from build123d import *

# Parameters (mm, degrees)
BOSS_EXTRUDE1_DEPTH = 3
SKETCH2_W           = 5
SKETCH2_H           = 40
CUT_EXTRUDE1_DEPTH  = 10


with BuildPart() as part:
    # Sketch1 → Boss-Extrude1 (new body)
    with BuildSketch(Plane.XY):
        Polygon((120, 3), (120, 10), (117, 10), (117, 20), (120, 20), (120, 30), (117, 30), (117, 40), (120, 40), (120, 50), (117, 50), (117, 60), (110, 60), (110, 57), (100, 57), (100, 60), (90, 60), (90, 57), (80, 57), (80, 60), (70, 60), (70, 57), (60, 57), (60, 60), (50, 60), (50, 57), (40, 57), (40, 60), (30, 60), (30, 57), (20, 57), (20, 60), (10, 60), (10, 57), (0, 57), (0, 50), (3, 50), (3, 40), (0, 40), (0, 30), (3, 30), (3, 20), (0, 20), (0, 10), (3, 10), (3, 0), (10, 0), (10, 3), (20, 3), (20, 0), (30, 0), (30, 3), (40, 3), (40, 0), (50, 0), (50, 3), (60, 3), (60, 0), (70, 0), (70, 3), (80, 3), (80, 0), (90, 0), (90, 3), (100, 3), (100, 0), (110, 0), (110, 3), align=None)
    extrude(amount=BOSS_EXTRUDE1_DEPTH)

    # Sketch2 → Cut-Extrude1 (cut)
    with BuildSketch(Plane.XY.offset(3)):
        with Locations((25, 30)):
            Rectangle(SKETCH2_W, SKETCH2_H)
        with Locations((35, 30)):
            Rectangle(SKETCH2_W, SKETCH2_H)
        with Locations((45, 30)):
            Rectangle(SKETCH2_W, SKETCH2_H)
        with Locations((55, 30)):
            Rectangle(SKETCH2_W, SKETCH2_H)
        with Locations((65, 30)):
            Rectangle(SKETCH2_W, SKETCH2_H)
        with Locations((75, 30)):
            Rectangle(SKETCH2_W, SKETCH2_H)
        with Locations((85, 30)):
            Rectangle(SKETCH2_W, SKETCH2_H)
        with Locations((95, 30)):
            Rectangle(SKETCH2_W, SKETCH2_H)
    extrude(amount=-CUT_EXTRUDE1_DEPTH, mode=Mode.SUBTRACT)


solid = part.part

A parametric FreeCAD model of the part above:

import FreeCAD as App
import Part
import Sketcher

V = App.Vector
Q = App.Units.Quantity


def add_polygon(sketch, points):
    """Adds a closed chain of lines whose ends are joined by coincident constraints."""
    first, n = sketch.GeometryCount, len(points)
    for a, b in zip(points, points[1:] + points[:1]):
        sketch.addGeometry(Part.LineSegment(App.Vector(*a, 0), App.Vector(*b, 0)), False)
    for i in range(n):
        sketch.addConstraint(Sketcher.Constraint("Coincident", first + i, 2, first + (i + 1) % n, 1))

doc = App.newDocument("Part")
params = doc.addObject("Spreadsheet::Sheet", "Params")
for row, (alias, value) in enumerate([
    ("sketch1_width", "3 mm"),
    ("sketch1_width2", "7 mm"),
    ("pad1_length", "3 mm"),
    ("sketch2_width", "5 mm"),
    ("sketch2_height", "40 mm"),
    ("pocket1_length", "10 mm"),
], start=1):
    params.set(f"A{row}", alias)
    params.set(f"B{row}", "=" + value)
    params.setAlias(f"B{row}", alias)

body = doc.addObject("PartDesign::Body", "Body")

sketch1 = body.newObject("Sketcher::SketchObject", "Sketch")
sketch1.AttachmentSupport = (doc.getObject("XY_Plane"), [""])
sketch1.MapMode = "FlatFace"
add_polygon(sketch1, [(120, 3), (120, 10), (117, 10), (117, 20), (120, 20), (120, 30), (117, 30), (117, 40), (120, 40), (120, 50), (117, 50), (117, 60), (110, 60), (110, 57), (100, 57), (100, 60), (90, 60), (90, 57), (80, 57), (80, 60), (70, 60), (70, 57), (60, 57), (60, 60), (50, 60), (50, 57), (40, 57), (40, 60), (30, 60), (30, 57), (20, 57), (20, 60), (10, 60), (10, 57), (0, 57), (0, 50), (3, 50), (3, 40), (0, 40), (0, 30), (3, 30), (3, 20), (0, 20), (0, 10), (3, 10), (3, 0), (10, 0), (10, 3), (20, 3), (20, 0), (30, 0), (30, 3), (40, 3), (40, 0), (50, 0), (50, 3), (60, 3), (60, 0), (70, 0), (70, 3), (80, 3), (80, 0), (90, 0), (90, 3), (100, 3), (100, 0), (110, 0), (110, 3)])
sketch1.addConstraint(Sketcher.Constraint("Vertical", 0))
sketch1.addConstraint(Sketcher.Constraint("Horizontal", 1))
sketch1.addConstraint(Sketcher.Constraint("Vertical", 2))
sketch1.addConstraint(Sketcher.Constraint("Horizontal", 3))
sketch1.addConstraint(Sketcher.Constraint("Vertical", 4))
sketch1.addConstraint(Sketcher.Constraint("Horizontal", 5))
sketch1.addConstraint(Sketcher.Constraint("Vertical", 6))
sketch1.addConstraint(Sketcher.Constraint("Horizontal", 7))
sketch1.addConstraint(Sketcher.Constraint("Vertical", 8))
sketch1.addConstraint(Sketcher.Constraint("Horizontal", 9))
sketch1.addConstraint(Sketcher.Constraint("Vertical", 10))
sketch1.addConstraint(Sketcher.Constraint("Horizontal", 11))
sketch1.addConstraint(Sketcher.Constraint("Vertical", 12))
sketch1.addConstraint(Sketcher.Constraint("Horizontal", 13))
sketch1.addConstraint(Sketcher.Constraint("Vertical", 14))
sketch1.addConstraint(Sketcher.Constraint("Horizontal", 15))
sketch1.addConstraint(Sketcher.Constraint("Vertical", 16))
sketch1.addConstraint(Sketcher.Constraint("Horizontal", 17))
sketch1.addConstraint(Sketcher.Constraint("Vertical", 18))
sketch1.addConstraint(Sketcher.Constraint("Horizontal", 19))
sketch1.addConstraint(Sketcher.Constraint("Vertical", 20))
sketch1.addConstraint(Sketcher.Constraint("Horizontal", 21))
sketch1.addConstraint(Sketcher.Constraint("Vertical", 22))
sketch1.addConstraint(Sketcher.Constraint("Horizontal", 23))
sketch1.addConstraint(Sketcher.Constraint("Vertical", 24))
sketch1.addConstraint(Sketcher.Constraint("Horizontal", 25))
sketch1.addConstraint(Sketcher.Constraint("Vertical", 26))
sketch1.addConstraint(Sketcher.Constraint("Horizontal", 27))
sketch1.addConstraint(Sketcher.Constraint("Vertical", 28))
sketch1.addConstraint(Sketcher.Constraint("Horizontal", 29))
sketch1.addConstraint(Sketcher.Constraint("Vertical", 30))
sketch1.addConstraint(Sketcher.Constraint("Horizontal", 31))
sketch1.addConstraint(Sketcher.Constraint("Vertical", 32))
sketch1.addConstraint(Sketcher.Constraint("Horizontal", 33))
sketch1.addConstraint(Sketcher.Constraint("Vertical", 34))
sketch1.addConstraint(Sketcher.Constraint("Horizontal", 35))
sketch1.addConstraint(Sketcher.Constraint("Vertical", 36))
sketch1.addConstraint(Sketcher.Constraint("Horizontal", 37))
sketch1.addConstraint(Sketcher.Constraint("Vertical", 38))
sketch1.addConstraint(Sketcher.Constraint("Horizontal", 39))
sketch1.addConstraint(Sketcher.Constraint("Vertical", 40))
sketch1.addConstraint(Sketcher.Constraint("Horizontal", 41))
sketch1.addConstraint(Sketcher.Constraint("Vertical", 42))
sketch1.addConstraint(Sketcher.Constraint("Horizontal", 43))
sketch1.addConstraint(Sketcher.Constraint("Vertical", 44))
sketch1.addConstraint(Sketcher.Constraint("Horizontal", 45))
sketch1.addConstraint(Sketcher.Constraint("Vertical", 46))
sketch1.addConstraint(Sketcher.Constraint("Horizontal", 47))
sketch1.addConstraint(Sketcher.Constraint("Vertical", 48))
sketch1.addConstraint(Sketcher.Constraint("Horizontal", 49))
sketch1.addConstraint(Sketcher.Constraint("Vertical", 50))
sketch1.addConstraint(Sketcher.Constraint("Horizontal", 51))
sketch1.addConstraint(Sketcher.Constraint("Vertical", 52))
sketch1.addConstraint(Sketcher.Constraint("Horizontal", 53))
sketch1.addConstraint(Sketcher.Constraint("Vertical", 54))
sketch1.addConstraint(Sketcher.Constraint("Horizontal", 55))
sketch1.addConstraint(Sketcher.Constraint("Vertical", 56))
sketch1.addConstraint(Sketcher.Constraint("Horizontal", 57))
sketch1.addConstraint(Sketcher.Constraint("Vertical", 58))
sketch1.addConstraint(Sketcher.Constraint("Horizontal", 59))
sketch1.addConstraint(Sketcher.Constraint("Vertical", 60))
sketch1.addConstraint(Sketcher.Constraint("Horizontal", 61))
sketch1.addConstraint(Sketcher.Constraint("Vertical", 62))
sketch1.addConstraint(Sketcher.Constraint("Horizontal", 63))
sketch1.addConstraint(Sketcher.Constraint("Vertical", 64))
sketch1.addConstraint(Sketcher.Constraint("Horizontal", 65))
sketch1.addConstraint(Sketcher.Constraint("Vertical", 66))
sketch1.addConstraint(Sketcher.Constraint("Horizontal", 67))
sketch1.addConstraint(Sketcher.Constraint("PointOnObject", 33, 2, -2))
sketch1.addConstraint(Sketcher.Constraint("PointOnObject", 37, 2, -2))
sketch1.addConstraint(Sketcher.Constraint("PointOnObject", 41, 2, -2))
sketch1.addConstraint(Sketcher.Constraint("PointOnObject", 44, 2, -1))
sketch1.addConstraint(Sketcher.Constraint("PointOnObject", 48, 2, -1))
sketch1.addConstraint(Sketcher.Constraint("PointOnObject", 52, 2, -1))
sketch1.addConstraint(Sketcher.Constraint("PointOnObject", 56, 2, -1))
sketch1.addConstraint(Sketcher.Constraint("PointOnObject", 60, 2, -1))
sketch1.addConstraint(Sketcher.Constraint("PointOnObject", 64, 2, -1))
sketch1.addConstraint(Sketcher.Constraint("Horizontal", 11, 2, 14, 2))
sketch1.addConstraint(Sketcher.Constraint("Horizontal", 13, 2, 16, 2))
sketch1.addConstraint(Sketcher.Constraint("Horizontal", 15, 2, 18, 2))
sketch1.addConstraint(Sketcher.Constraint("Horizontal", 17, 2, 20, 2))
sketch1.addConstraint(Sketcher.Constraint("Horizontal", 19, 2, 22, 2))
sketch1.addConstraint(Sketcher.Constraint("Horizontal", 21, 2, 24, 2))
sketch1.addConstraint(Sketcher.Constraint("Horizontal", 23, 2, 26, 2))
sketch1.addConstraint(Sketcher.Constraint("Horizontal", 25, 2, 28, 2))
sketch1.addConstraint(Sketcher.Constraint("Horizontal", 27, 2, 30, 2))
sketch1.addConstraint(Sketcher.Constraint("Horizontal", 29, 2, 32, 2))
sketch1.addConstraint(Sketcher.Constraint("Horizontal", 9, 2, 34, 2))
sketch1.addConstraint(Sketcher.Constraint("Horizontal", 7, 2, 36, 2))
sketch1.addConstraint(Sketcher.Constraint("Horizontal", 5, 2, 38, 2))
sketch1.addConstraint(Sketcher.Constraint("Horizontal", 3, 2, 40, 2))
sketch1.addConstraint(Sketcher.Constraint("Horizontal", 1, 2, 42, 2))
sketch1.addConstraint(Sketcher.Constraint("Horizontal", 47, 2, 50, 2))
sketch1.addConstraint(Sketcher.Constraint("Horizontal", 51, 2, 54, 2))
sketch1.addConstraint(Sketcher.Constraint("Horizontal", 55, 2, 58, 2))
sketch1.addConstraint(Sketcher.Constraint("Horizontal", 59, 2, 62, 2))
sketch1.addConstraint(Sketcher.Constraint("Horizontal", 63, 2, 66, 2))
sketch1.addConstraint(Sketcher.Constraint("Vertical", 0, 2, 3, 2))
sketch1.addConstraint(Sketcher.Constraint("Vertical", 2, 2, 5, 2))
sketch1.addConstraint(Sketcher.Constraint("Vertical", 4, 2, 7, 2))
sketch1.addConstraint(Sketcher.Constraint("Vertical", 6, 2, 9, 2))
sketch1.addConstraint(Sketcher.Constraint("Vertical", 36, 2, 39, 2))
sketch1.addConstraint(Sketcher.Constraint("Vertical", 40, 2, 43, 2))
sketch1.addConstraint(Sketcher.Constraint("Vertical", 32, 2, 45, 2))
sketch1.addConstraint(Sketcher.Constraint("Vertical", 30, 2, 47, 2))
sketch1.addConstraint(Sketcher.Constraint("Vertical", 28, 2, 49, 2))
sketch1.addConstraint(Sketcher.Constraint("Vertical", 26, 2, 51, 2))
sketch1.addConstraint(Sketcher.Constraint("Vertical", 24, 2, 53, 2))
sketch1.addConstraint(Sketcher.Constraint("Vertical", 22, 2, 55, 2))
sketch1.addConstraint(Sketcher.Constraint("Vertical", 20, 2, 57, 2))
sketch1.addConstraint(Sketcher.Constraint("Vertical", 18, 2, 59, 2))
sketch1.addConstraint(Sketcher.Constraint("Vertical", 16, 2, 61, 2))
sketch1.addConstraint(Sketcher.Constraint("Vertical", 14, 2, 63, 2))
sketch1.addConstraint(Sketcher.Constraint("Vertical", 12, 2, 65, 2))
sketch1.addConstraint(Sketcher.Constraint("Equal", 13, 15))
sketch1.addConstraint(Sketcher.Constraint("Equal", 15, 17))
sketch1.addConstraint(Sketcher.Constraint("Equal", 17, 19))
sketch1.addConstraint(Sketcher.Constraint("Equal", 19, 21))
sketch1.addConstraint(Sketcher.Constraint("Equal", 21, 23))
sketch1.addConstraint(Sketcher.Constraint("Equal", 23, 25))
sketch1.addConstraint(Sketcher.Constraint("Equal", 25, 27))
sketch1.addConstraint(Sketcher.Constraint("Equal", 27, 29))
sketch1.addConstraint(Sketcher.Constraint("Equal", 29, 31))
sketch1.addConstraint(Sketcher.Constraint("Equal", 31, 33))
sketch1.addConstraint(Sketcher.Constraint("Equal", 9, 35))
sketch1.addConstraint(Sketcher.Constraint("Equal", 11, 45))
sketch1.addConstraint(Sketcher.Constraint("Equal", 45, 0))
sketch1.addConstraint(Sketcher.Constraint("Equal", 67, 2))
sketch1.addConstraint(Sketcher.Constraint("Equal", 2, 4))
sketch1.addConstraint(Sketcher.Constraint("Equal", 4, 6))
sketch1.addConstraint(Sketcher.Constraint("Equal", 6, 8))
sketch1.addConstraint(Sketcher.Constraint("Equal", 8, 10))
sketch1.addConstraint(Sketcher.Constraint("Equal", 43, 12))
sketch1.addConstraint(Sketcher.Constraint("Equal", 42, 44))
sketch1.addConstraint(Sketcher.Constraint("DistanceX", 1, 2, 1, 1, Q("3 mm")))
sketch1.addConstraint(Sketcher.Constraint("DistanceX", 11, 2, 11, 1, Q("7 mm")))
sketch1.setExpression("Constraints[202]", "Params.sketch1_width")
sketch1.setExpression("Constraints[203]", "Params.sketch1_width2")
pad1 = body.newObject("PartDesign::Pad", "Pad")
pad1.Profile = sketch1
pad1.setExpression("Length", "Params.pad1_length")

sketch2 = body.newObject("Sketcher::SketchObject", "Sketch001")
sketch2.AttachmentSupport = (doc.getObject("XY_Plane"), [""])
sketch2.MapMode = "FlatFace"
sketch2.AttachmentOffset = App.Placement(V(0, 0, 3), App.Rotation())
add_polygon(sketch2, [(22, 50), (22, 10), (28, 10), (28, 50)])
add_polygon(sketch2, [(32, 50), (32, 10), (38, 10), (38, 50)])
add_polygon(sketch2, [(42, 50), (42, 10), (48, 10), (48, 50)])
add_polygon(sketch2, [(52, 50), (52, 10), (58, 10), (58, 50)])
add_polygon(sketch2, [(62, 50), (62, 10), (68, 10), (68, 50)])
add_polygon(sketch2, [(72, 50), (72, 10), (78, 10), (78, 50)])
add_polygon(sketch2, [(82, 50), (82, 10), (88, 10), (88, 50)])
add_polygon(sketch2, [(92, 50), (92, 10), (98, 10), (98, 50)])
sketch2.addConstraint(Sketcher.Constraint("Vertical", 0))
sketch2.addConstraint(Sketcher.Constraint("Horizontal", 1))
sketch2.addConstraint(Sketcher.Constraint("Vertical", 2))
sketch2.addConstraint(Sketcher.Constraint("Horizontal", 3))
sketch2.addConstraint(Sketcher.Constraint("Vertical", 4))
sketch2.addConstraint(Sketcher.Constraint("Horizontal", 5))
sketch2.addConstraint(Sketcher.Constraint("Vertical", 6))
sketch2.addConstraint(Sketcher.Constraint("Horizontal", 7))
sketch2.addConstraint(Sketcher.Constraint("Vertical", 8))
sketch2.addConstraint(Sketcher.Constraint("Horizontal", 9))
sketch2.addConstraint(Sketcher.Constraint("Vertical", 10))
sketch2.addConstraint(Sketcher.Constraint("Horizontal", 11))
sketch2.addConstraint(Sketcher.Constraint("Vertical", 12))
sketch2.addConstraint(Sketcher.Constraint("Horizontal", 13))
sketch2.addConstraint(Sketcher.Constraint("Vertical", 14))
sketch2.addConstraint(Sketcher.Constraint("Horizontal", 15))
sketch2.addConstraint(Sketcher.Constraint("Vertical", 16))
sketch2.addConstraint(Sketcher.Constraint("Horizontal", 17))
sketch2.addConstraint(Sketcher.Constraint("Vertical", 18))
sketch2.addConstraint(Sketcher.Constraint("Horizontal", 19))
sketch2.addConstraint(Sketcher.Constraint("Vertical", 20))
sketch2.addConstraint(Sketcher.Constraint("Horizontal", 21))
sketch2.addConstraint(Sketcher.Constraint("Vertical", 22))
sketch2.addConstraint(Sketcher.Constraint("Horizontal", 23))
sketch2.addConstraint(Sketcher.Constraint("Vertical", 24))
sketch2.addConstraint(Sketcher.Constraint("Horizontal", 25))
sketch2.addConstraint(Sketcher.Constraint("Vertical", 26))
sketch2.addConstraint(Sketcher.Constraint("Horizontal", 27))
sketch2.addConstraint(Sketcher.Constraint("Vertical", 28))
sketch2.addConstraint(Sketcher.Constraint("Horizontal", 29))
sketch2.addConstraint(Sketcher.Constraint("Vertical", 30))
sketch2.addConstraint(Sketcher.Constraint("Horizontal", 31))
sketch2.addConstraint(Sketcher.Constraint("Horizontal", 1, 2, 4, 2))
sketch2.addConstraint(Sketcher.Constraint("Horizontal", 3, 2, 6, 2))
sketch2.addConstraint(Sketcher.Constraint("Horizontal", 5, 2, 8, 2))
sketch2.addConstraint(Sketcher.Constraint("Horizontal", 7, 2, 10, 2))
sketch2.addConstraint(Sketcher.Constraint("Horizontal", 9, 2, 12, 2))
sketch2.addConstraint(Sketcher.Constraint("Horizontal", 11, 2, 14, 2))
sketch2.addConstraint(Sketcher.Constraint("Horizontal", 13, 2, 16, 2))
sketch2.addConstraint(Sketcher.Constraint("Horizontal", 15, 2, 18, 2))
sketch2.addConstraint(Sketcher.Constraint("Horizontal", 17, 2, 20, 2))
sketch2.addConstraint(Sketcher.Constraint("Horizontal", 19, 2, 22, 2))
sketch2.addConstraint(Sketcher.Constraint("Horizontal", 21, 2, 24, 2))
sketch2.addConstraint(Sketcher.Constraint("Horizontal", 23, 2, 26, 2))
sketch2.addConstraint(Sketcher.Constraint("Horizontal", 25, 2, 28, 2))
sketch2.addConstraint(Sketcher.Constraint("Horizontal", 27, 2, 30, 2))
sketch2.addConstraint(Sketcher.Constraint("Equal", 3, 5))
sketch2.addConstraint(Sketcher.Constraint("Equal", 7, 9))
sketch2.addConstraint(Sketcher.Constraint("Equal", 11, 13))
sketch2.addConstraint(Sketcher.Constraint("Equal", 15, 17))
sketch2.addConstraint(Sketcher.Constraint("Equal", 19, 21))
sketch2.addConstraint(Sketcher.Constraint("Equal", 23, 25))
sketch2.addConstraint(Sketcher.Constraint("Equal", 27, 29))
sketch2.addConstraint(Sketcher.Constraint("DistanceX", 1, 1, 1, 2, Q("5 mm")))
sketch2.addConstraint(Sketcher.Constraint("DistanceY", 0, 2, 0, 1, Q("40 mm")))
sketch2.addConstraint(Sketcher.Constraint("DistanceY", -1, 1, 0, 2, Q("10 mm")))
sketch2.addConstraint(Sketcher.Constraint("DistanceX", 1, 2, 4, 2, Q("5 mm")))
sketch2.addConstraint(Sketcher.Constraint("DistanceX", 5, 2, 8, 2, Q("5 mm")))
sketch2.addConstraint(Sketcher.Constraint("DistanceX", 9, 2, 12, 2, Q("5 mm")))
sketch2.addConstraint(Sketcher.Constraint("DistanceX", 13, 2, 16, 2, Q("5 mm")))
sketch2.addConstraint(Sketcher.Constraint("DistanceX", 17, 2, 20, 2, Q("5 mm")))
sketch2.addConstraint(Sketcher.Constraint("DistanceX", 21, 2, 24, 2, Q("5 mm")))
sketch2.addConstraint(Sketcher.Constraint("DistanceX", 25, 2, 28, 2, Q("5 mm")))
sketch2.addConstraint(Sketcher.Constraint("DistanceX", -1, 1, 0, 2, Q("22.5 mm")))
sketch2.setExpression("Constraints[85]", "Params.sketch2_width")
sketch2.setExpression("Constraints[86]", "Params.sketch2_height")
pocket1 = body.newObject("PartDesign::Pocket", "Pocket")
pocket1.Profile = sketch2
pocket1.setExpression("Length", "Params.pocket1_length")

doc.recompute()
